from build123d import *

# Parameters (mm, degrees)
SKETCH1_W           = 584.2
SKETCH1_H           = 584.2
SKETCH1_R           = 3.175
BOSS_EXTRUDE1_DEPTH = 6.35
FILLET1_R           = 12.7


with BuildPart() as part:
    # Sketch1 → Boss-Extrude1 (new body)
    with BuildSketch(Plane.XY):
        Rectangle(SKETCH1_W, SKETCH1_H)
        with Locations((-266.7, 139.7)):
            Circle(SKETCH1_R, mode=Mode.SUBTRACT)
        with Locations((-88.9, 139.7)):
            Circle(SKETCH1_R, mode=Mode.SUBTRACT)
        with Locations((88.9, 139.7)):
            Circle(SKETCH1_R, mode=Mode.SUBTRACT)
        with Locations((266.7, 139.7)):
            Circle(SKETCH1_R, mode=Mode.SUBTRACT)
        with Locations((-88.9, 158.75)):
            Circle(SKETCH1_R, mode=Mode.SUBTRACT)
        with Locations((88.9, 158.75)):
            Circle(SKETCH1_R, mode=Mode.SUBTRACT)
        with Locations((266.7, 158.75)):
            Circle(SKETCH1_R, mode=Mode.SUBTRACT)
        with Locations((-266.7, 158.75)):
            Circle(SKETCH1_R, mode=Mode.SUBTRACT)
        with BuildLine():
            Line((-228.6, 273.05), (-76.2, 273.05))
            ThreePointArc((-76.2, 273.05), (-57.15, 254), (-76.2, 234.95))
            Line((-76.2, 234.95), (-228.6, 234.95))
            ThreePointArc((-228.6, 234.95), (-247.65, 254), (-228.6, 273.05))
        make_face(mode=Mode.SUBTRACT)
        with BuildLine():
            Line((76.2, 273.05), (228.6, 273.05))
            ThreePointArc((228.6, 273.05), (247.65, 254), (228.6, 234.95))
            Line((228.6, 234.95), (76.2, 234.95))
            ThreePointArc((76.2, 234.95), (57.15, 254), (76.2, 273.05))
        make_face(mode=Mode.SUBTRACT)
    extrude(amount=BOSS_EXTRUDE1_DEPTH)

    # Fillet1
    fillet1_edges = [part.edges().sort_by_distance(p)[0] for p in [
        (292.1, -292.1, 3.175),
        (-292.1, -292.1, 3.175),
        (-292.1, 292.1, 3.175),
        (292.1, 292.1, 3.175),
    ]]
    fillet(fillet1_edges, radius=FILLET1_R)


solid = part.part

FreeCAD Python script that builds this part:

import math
import FreeCAD as App
import Part
import Sketcher

V = App.Vector
Q = App.Units.Quantity


def edges_at(feature, points):
    """Names of the edges that pass closest to the given points."""
    edges = feature.Shape.Edges
    near = lambda p: min(range(len(edges)), key=lambda i: edges[i].distToShape(Part.Vertex(*p))[0])
    return sorted({f"Edge{near(p) + 1}" for p in points})

doc = App.newDocument("Part")
params = doc.addObject("Spreadsheet::Sheet", "Params")
for row, (alias, value) in enumerate([
    ("sketch1_diameter", "0.25 in"),
    ("sketch1_width", "23 in"),
    ("sketch1_width2", "6 in"),
    ("sketch1_radius", "0.75 in"),
    ("pad1_length", "0.25 in"),
    ("fillet_radius", "0.5 in"),
], start=1):
    params.set(f"A{row}", alias)
    params.set(f"B{row}", "=" + value)
    params.setAlias(f"B{row}", alias)

body = doc.addObject("PartDesign::Body", "Body")

# Sketch on XY plane
sketch1 = doc.addObject("Sketcher::SketchObject", "Sketch")
body.addObject(sketch1)
sketch1.AttachmentSupport = (doc.XY_Plane, [""])
sketch1.MapMode = "FlatFace"
sketch1.addGeometry([
    Part.LineSegment(V(-292.1, 292.1, 0), V(-292.1, -292.1, 0)),  # 0
    Part.LineSegment(V(-292.1, -292.1, 0), V(292.1, -292.1, 0)),  # 1
    Part.LineSegment(V(292.1, -292.1, 0), V(292.1, 292.1, 0)),  # 2
    Part.LineSegment(V(292.1, 292.1, 0), V(-292.1, 292.1, 0)),  # 3
    Part.Circle(V(-266.7, 139.7, 0), V(0, 0, 1), 3.2),  # 4
    Part.Circle(V(-266.7, 158.8, 0), V(0, 0, 1), 3.2),  # 5
    Part.Circle(V(-88.9, 139.7, 0), V(0, 0, 1), 3.2),  # 6
    Part.Circle(V(-88.9, 158.8, 0), V(0, 0, 1), 3.2),  # 7
    Part.Circle(V(88.9, 139.7, 0), V(0, 0, 1), 3.2),  # 8
    Part.Circle(V(88.9, 158.8, 0), V(0, 0, 1), 3.2),  # 9
    Part.Circle(V(266.7, 139.7, 0), V(0, 0, 1), 3.2),  # 10
    Part.Circle(V(266.7, 158.8, 0), V(0, 0, 1), 3.2),  # 11
    Part.ArcOfCircle(Part.Circle(V(-228.6, 254, 0), V(0, 0, 1), 19.1), math.radians(90), math.radians(270)),  # 12
    Part.LineSegment(V(-228.6, 273.1, 0), V(-76.2, 273.1, 0)),  # 13
    Part.ArcOfCircle(Part.Circle(V(-76.2, 254, 0), V(0, 0, 1), 19.1), math.radians(-90), math.radians(90)),  # 14
    Part.LineSegment(V(-76.2, 234.9, 0), V(-228.6, 234.9, 0)),  # 15
    Part.ArcOfCircle(Part.Circle(V(76.2, 254, 0), V(0, 0, 1), 19.1), math.radians(90), math.radians(270)),  # 16
    Part.LineSegment(V(76.2, 273.1, 0), V(228.6, 273.1, 0)),  # 17
    Part.ArcOfCircle(Part.Circle(V(228.6, 254, 0), V(0, 0, 1), 19.1), math.radians(-90), math.radians(90)),  # 18
    Part.LineSegment(V(228.6, 234.9, 0), V(76.2, 234.9, 0)),  # 19
], False)
sketch1.addConstraint([
    Sketcher.Constraint("Coincident", 0, 2, 1, 1),
    Sketcher.Constraint("Coincident", 1, 2, 2, 1),
    Sketcher.Constraint("Coincident", 2, 2, 3, 1),
    Sketcher.Constraint("Coincident", 3, 2, 0, 1),
    Sketcher.Constraint("Tangent", 12, 1, 13, 1),
    Sketcher.Constraint("Tangent", 13, 2, 14, 2),
    Sketcher.Constraint("Tangent", 14, 1, 15, 1),
    Sketcher.Constraint("Tangent", 15, 2, 12, 2),
    Sketcher.Constraint("Tangent", 16, 1, 17, 1),
    Sketcher.Constraint("Tangent", 17, 2, 18, 2),
    Sketcher.Constraint("Tangent", 18, 1, 19, 1),
    Sketcher.Constraint("Tangent", 19, 2, 16, 2),
    Sketcher.Constraint("Vertical", 0),
    Sketcher.Constraint("Horizontal", 1),
    Sketcher.Constraint("Vertical", 2),
    Sketcher.Constraint("Horizontal", 3),
    Sketcher.Constraint("Horizontal", 13),
    Sketcher.Constraint("Horizontal", 15),
    Sketcher.Constraint("Horizontal", 17),
    Sketcher.Constraint("Horizontal", 19),
    Sketcher.Constraint("Equal", 4, 5),
    Sketcher.Constraint("Equal", 5, 6),
    Sketcher.Constraint("Equal", 6, 7),
    Sketcher.Constraint("Equal", 7, 8),
    Sketcher.Constraint("Equal", 8, 9),
    Sketcher.Constraint("Equal", 9, 10),
    Sketcher.Constraint("Equal", 10, 11),
    Sketcher.Constraint("Equal", 14, 16),
    Sketcher.Constraint("Symmetric", 0, 2, 2, 2, -1, 1),
    Sketcher.Constraint("Symmetric", 6, 3, 8, 3, -2),
    Sketcher.Constraint("Symmetric", 7, 3, 9, 3, -2),
    Sketcher.Constraint("Symmetric", 4, 3, 10, 3, -2),
    Sketcher.Constraint("Symmetric", 5, 3, 11, 3, -2),
    Sketcher.Constraint("Symmetric", 14, 3, 16, 3, -2),
    Sketcher.Constraint("Horizontal", 4, 3, 6, 3),
    Sketcher.Constraint("Horizontal", 5, 3, 7, 3),
    Sketcher.Constraint("Vertical", 4, 3, 5, 3),
    Sketcher.Constraint("Vertical", 6, 3, 7, 3),
    Sketcher.Constraint("Equal", 15, 17),
    Sketcher.Constraint("Equal", 3, 0),
    Sketcher.Constraint("Diameter", 4, Q("0.25 in")),
    Sketcher.Constraint("DistanceX", 1, 1, 1, 2, Q("23 in")),
    Sketcher.Constraint("DistanceX", 13, 1, 13, 2, Q("6 in")),
    Sketcher.Constraint("Radius", 12, Q("0.75 in")),
    Sketcher.Constraint("DistanceX", 12, 3, -1, 1, Q("9 in")),
    Sketcher.Constraint("DistanceY", -1, 1, 12, 3, Q("10 in")),
    Sketcher.Constraint("DistanceX", 4, 3, 6, 3, Q("7 in")),
    Sketcher.Constraint("DistanceX", 6, 3, 8, 3, Q("7 in")),
    Sketcher.Constraint("DistanceY", 0, 2, 4, 3, Q("17 in")),
    Sketcher.Constraint("DistanceY", 7, 3, 14, 1, Q("3 in")),
])
sketch1.setExpression("Constraints[40]", "Params.sketch1_diameter")
sketch1.setExpression("Constraints[41]", "Params.sketch1_width")
sketch1.setExpression("Constraints[42]", "Params.sketch1_width2")
sketch1.setExpression("Constraints[43]", "Params.sketch1_radius")
pad1 = doc.addObject("PartDesign::Pad", "Pad")
body.addObject(pad1)
pad1.Profile = sketch1
pad1.setExpression("Length", "Params.pad1_length")
doc.recompute()

fillet = doc.addObject("PartDesign::Fillet", "Fillet")
body.addObject(fillet)
fillet.Base = (pad1, edges_at(pad1, [
    (292.1, -292.1, 3.175),
    (-292.1, -292.1, 3.175),
    (-292.1, 292.1, 3.175),
    (292.1, 292.1, 3.175),
]))
fillet.setExpression("Radius", "Params.fillet_radius")

doc.recompute()
